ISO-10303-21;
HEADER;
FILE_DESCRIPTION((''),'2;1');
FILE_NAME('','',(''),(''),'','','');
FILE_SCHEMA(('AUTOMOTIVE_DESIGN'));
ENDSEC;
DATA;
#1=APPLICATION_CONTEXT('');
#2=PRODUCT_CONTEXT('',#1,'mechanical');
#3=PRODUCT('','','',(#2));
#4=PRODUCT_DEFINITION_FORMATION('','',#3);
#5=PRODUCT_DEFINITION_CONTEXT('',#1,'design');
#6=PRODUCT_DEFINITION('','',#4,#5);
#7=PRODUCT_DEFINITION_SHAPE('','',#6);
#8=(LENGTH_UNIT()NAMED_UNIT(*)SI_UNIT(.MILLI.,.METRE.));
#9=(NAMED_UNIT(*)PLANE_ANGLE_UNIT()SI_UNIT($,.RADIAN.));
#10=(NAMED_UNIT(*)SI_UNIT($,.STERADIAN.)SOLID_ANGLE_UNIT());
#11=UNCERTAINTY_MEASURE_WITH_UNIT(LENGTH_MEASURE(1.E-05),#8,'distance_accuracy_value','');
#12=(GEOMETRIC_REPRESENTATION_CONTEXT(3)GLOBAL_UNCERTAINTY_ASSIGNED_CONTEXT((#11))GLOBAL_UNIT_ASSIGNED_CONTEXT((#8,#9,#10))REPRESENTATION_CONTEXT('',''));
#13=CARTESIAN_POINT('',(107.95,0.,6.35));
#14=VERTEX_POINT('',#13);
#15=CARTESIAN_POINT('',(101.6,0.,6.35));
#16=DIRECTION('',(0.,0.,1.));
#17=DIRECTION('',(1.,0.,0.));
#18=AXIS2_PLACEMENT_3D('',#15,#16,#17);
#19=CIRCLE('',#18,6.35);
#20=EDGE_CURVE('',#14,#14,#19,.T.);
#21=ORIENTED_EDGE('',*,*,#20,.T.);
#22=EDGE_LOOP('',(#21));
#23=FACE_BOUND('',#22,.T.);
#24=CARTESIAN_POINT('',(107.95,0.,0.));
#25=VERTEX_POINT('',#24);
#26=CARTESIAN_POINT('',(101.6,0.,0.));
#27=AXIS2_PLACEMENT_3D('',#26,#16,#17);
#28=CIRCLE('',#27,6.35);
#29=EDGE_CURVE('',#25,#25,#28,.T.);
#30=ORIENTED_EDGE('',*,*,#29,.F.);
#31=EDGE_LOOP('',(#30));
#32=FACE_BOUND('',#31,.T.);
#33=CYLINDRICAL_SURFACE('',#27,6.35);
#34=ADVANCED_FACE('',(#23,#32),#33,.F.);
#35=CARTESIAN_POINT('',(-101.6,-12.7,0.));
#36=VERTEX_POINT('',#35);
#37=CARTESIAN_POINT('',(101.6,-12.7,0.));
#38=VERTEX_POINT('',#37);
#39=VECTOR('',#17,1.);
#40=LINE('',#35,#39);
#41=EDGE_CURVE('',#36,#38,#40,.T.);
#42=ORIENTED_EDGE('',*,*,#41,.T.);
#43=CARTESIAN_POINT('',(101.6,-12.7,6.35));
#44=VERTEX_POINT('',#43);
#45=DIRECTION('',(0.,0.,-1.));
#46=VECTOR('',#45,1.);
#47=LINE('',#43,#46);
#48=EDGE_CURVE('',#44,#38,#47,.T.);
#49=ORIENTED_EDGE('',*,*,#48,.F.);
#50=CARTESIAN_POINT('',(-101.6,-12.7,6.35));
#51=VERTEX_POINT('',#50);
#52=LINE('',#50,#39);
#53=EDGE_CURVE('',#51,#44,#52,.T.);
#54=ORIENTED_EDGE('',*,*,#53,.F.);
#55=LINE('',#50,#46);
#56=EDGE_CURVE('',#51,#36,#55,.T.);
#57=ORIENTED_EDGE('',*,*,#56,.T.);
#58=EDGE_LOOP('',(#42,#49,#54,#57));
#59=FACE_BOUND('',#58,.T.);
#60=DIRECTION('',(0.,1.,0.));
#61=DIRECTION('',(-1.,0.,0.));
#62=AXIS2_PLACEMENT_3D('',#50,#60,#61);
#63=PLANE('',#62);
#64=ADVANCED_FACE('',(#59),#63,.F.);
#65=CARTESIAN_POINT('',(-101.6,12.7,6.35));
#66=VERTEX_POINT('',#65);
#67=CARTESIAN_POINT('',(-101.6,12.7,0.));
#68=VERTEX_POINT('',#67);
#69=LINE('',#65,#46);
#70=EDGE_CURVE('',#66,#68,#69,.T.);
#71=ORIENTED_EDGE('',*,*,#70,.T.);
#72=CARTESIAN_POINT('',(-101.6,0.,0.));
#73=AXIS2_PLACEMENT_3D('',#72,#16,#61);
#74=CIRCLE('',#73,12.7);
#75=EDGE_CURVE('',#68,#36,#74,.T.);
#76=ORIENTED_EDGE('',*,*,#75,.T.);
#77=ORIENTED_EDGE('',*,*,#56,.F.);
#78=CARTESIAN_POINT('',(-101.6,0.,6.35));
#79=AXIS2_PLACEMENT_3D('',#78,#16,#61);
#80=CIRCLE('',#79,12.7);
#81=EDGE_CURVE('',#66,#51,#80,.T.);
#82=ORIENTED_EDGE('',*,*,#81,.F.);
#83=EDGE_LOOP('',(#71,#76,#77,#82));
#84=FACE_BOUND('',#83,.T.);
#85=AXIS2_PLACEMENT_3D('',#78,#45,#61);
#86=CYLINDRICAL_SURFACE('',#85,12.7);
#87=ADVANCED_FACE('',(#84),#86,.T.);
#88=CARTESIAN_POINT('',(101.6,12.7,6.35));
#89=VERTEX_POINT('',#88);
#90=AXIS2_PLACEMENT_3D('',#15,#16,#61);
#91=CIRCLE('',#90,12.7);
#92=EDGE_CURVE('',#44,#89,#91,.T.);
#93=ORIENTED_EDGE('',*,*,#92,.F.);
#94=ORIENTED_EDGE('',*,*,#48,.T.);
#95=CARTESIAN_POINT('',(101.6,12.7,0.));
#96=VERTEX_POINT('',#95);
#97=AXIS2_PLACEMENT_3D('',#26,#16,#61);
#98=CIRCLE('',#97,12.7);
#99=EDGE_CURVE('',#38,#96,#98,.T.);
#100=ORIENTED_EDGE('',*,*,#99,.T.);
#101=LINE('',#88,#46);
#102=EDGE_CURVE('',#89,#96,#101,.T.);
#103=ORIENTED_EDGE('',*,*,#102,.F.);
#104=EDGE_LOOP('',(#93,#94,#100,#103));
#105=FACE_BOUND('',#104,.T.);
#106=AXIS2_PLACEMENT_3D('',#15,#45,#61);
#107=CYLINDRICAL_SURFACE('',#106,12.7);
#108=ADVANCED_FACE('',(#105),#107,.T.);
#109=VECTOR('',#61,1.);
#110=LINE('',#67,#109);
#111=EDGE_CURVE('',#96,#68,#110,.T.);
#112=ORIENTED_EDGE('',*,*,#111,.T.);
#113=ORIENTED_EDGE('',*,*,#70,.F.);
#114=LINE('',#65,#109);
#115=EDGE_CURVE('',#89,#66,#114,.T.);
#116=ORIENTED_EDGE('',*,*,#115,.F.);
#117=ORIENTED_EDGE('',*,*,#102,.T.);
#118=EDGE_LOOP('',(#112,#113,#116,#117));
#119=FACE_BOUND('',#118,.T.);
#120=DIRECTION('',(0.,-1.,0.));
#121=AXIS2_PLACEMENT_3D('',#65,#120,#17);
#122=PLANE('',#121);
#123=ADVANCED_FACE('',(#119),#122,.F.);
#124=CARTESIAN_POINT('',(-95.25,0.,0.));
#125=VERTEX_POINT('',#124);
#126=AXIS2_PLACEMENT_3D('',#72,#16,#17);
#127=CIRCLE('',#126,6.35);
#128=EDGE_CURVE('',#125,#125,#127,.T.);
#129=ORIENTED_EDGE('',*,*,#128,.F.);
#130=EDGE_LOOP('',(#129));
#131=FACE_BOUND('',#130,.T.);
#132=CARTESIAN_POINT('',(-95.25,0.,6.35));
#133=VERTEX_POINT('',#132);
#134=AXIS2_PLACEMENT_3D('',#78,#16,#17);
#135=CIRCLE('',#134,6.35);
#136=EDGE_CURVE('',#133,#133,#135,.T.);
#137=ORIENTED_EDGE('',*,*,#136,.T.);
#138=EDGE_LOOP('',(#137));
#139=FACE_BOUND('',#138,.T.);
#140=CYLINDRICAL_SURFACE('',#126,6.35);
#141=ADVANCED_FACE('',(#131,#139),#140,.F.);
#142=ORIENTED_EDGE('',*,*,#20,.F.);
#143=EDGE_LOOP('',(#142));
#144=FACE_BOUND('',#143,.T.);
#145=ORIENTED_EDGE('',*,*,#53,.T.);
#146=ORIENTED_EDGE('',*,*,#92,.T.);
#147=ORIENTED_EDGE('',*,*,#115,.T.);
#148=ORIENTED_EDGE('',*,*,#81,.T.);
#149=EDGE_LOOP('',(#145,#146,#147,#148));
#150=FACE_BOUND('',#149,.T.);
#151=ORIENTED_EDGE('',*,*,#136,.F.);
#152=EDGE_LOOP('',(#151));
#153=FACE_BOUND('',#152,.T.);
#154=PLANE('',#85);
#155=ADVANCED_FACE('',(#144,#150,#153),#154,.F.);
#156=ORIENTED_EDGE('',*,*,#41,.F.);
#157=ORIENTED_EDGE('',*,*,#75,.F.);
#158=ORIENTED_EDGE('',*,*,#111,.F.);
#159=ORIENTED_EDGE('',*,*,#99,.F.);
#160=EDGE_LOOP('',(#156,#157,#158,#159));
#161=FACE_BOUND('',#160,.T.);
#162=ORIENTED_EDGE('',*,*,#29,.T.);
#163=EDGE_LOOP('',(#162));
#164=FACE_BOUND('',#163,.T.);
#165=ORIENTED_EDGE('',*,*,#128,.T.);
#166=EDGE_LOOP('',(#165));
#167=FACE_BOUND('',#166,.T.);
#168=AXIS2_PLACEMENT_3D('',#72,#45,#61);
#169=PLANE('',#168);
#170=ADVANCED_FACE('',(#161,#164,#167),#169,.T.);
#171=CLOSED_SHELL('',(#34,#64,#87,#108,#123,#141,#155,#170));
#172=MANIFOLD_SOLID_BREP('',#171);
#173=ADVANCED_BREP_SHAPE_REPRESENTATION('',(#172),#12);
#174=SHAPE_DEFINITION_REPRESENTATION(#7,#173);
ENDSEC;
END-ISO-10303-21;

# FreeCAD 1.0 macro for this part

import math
import FreeCAD as App
import Part
import Sketcher
Q = App.Units.Quantity

doc = App.newDocument("Part")
body = doc.addObject("PartDesign::Body", "Body")

# Sketch on XY plane
sketch1 = doc.addObject("Sketcher::SketchObject", "Sketch")
body.addObject(sketch1)
sketch1.AttachmentSupport = (doc.XY_Plane, [""])
sketch1.MapMode = "FlatFace"
sketch1.addGeometry([
    Part.LineSegment(App.Vector(102, 13, 0), App.Vector(-102, 13, 0)),
    Part.ArcOfCircle(Part.Circle(App.Vector(-102, 0, 0), App.Vector(0, 0, 1), 13), math.radians(90), math.radians(270)),
    Part.LineSegment(App.Vector(-102, -13, 0), App.Vector(102, -13, 0)),
    Part.ArcOfCircle(Part.Circle(App.Vector(102, 0, 0), App.Vector(0, 0, 1), 13), math.radians(-90), math.radians(90)),
], False)
sketch1.addConstraint([
    Sketcher.Constraint("Tangent", 0, 2, 1, 1),
    Sketcher.Constraint("Tangent", 1, 2, 2, 1),
    Sketcher.Constraint("Tangent", 2, 2, 3, 1),
    Sketcher.Constraint("Tangent", 3, 2, 0, 1),
    Sketcher.Constraint("Horizontal", 0),
    Sketcher.Constraint("Horizontal", 2),
    Sketcher.Constraint("Symmetric", 1, 3, 3, 3, -1, 1),
    Sketcher.Constraint("Radius", 1, Q("0.5 in")),
    Sketcher.Constraint("DistanceX", 0, 2, 0, 1, Q("8 in")),
])
pad1 = doc.addObject("PartDesign::Pad", "Pad")
body.addObject(pad1)
pad1.Profile = sketch1
pad1.Length = Q("0.25 in")

# Sketch on XY plane
sketch2 = doc.addObject("Sketcher::SketchObject", "Sketch001")
body.addObject(sketch2)
sketch2.AttachmentSupport = (doc.XY_Plane, [""])
sketch2.MapMode = "FlatFace"
sketch2.AttachmentOffset = App.Placement(App.Vector(0, 0, 0.25 * 25.4), App.Rotation())
sketch2.addGeometry([
    Part.Circle(App.Vector(-102, 0, 0), App.Vector(0, 0, 1), 6),
    Part.Circle(App.Vector(102, 0, 0), App.Vector(0, 0, 1), 6),
], False)
sketch2.addConstraint([
    Sketcher.Constraint("Equal", 0, 1),
    Sketcher.Constraint("Symmetric", 0, 3, 1, 3, -1, 1),
    Sketcher.Constraint("PointOnObject", 0, 3, -1),
    Sketcher.Constraint("Diameter", 0, Q("0.5 in")),
    Sketcher.Constraint("DistanceX", 0, 3, -1, 1, Q("4 in")),
])
pocket1 = doc.addObject("PartDesign::Pocket", "Pocket")
body.addObject(pocket1)
pocket1.Profile = sketch2
pocket1.Type = "ThroughAll"

doc.recompute()
